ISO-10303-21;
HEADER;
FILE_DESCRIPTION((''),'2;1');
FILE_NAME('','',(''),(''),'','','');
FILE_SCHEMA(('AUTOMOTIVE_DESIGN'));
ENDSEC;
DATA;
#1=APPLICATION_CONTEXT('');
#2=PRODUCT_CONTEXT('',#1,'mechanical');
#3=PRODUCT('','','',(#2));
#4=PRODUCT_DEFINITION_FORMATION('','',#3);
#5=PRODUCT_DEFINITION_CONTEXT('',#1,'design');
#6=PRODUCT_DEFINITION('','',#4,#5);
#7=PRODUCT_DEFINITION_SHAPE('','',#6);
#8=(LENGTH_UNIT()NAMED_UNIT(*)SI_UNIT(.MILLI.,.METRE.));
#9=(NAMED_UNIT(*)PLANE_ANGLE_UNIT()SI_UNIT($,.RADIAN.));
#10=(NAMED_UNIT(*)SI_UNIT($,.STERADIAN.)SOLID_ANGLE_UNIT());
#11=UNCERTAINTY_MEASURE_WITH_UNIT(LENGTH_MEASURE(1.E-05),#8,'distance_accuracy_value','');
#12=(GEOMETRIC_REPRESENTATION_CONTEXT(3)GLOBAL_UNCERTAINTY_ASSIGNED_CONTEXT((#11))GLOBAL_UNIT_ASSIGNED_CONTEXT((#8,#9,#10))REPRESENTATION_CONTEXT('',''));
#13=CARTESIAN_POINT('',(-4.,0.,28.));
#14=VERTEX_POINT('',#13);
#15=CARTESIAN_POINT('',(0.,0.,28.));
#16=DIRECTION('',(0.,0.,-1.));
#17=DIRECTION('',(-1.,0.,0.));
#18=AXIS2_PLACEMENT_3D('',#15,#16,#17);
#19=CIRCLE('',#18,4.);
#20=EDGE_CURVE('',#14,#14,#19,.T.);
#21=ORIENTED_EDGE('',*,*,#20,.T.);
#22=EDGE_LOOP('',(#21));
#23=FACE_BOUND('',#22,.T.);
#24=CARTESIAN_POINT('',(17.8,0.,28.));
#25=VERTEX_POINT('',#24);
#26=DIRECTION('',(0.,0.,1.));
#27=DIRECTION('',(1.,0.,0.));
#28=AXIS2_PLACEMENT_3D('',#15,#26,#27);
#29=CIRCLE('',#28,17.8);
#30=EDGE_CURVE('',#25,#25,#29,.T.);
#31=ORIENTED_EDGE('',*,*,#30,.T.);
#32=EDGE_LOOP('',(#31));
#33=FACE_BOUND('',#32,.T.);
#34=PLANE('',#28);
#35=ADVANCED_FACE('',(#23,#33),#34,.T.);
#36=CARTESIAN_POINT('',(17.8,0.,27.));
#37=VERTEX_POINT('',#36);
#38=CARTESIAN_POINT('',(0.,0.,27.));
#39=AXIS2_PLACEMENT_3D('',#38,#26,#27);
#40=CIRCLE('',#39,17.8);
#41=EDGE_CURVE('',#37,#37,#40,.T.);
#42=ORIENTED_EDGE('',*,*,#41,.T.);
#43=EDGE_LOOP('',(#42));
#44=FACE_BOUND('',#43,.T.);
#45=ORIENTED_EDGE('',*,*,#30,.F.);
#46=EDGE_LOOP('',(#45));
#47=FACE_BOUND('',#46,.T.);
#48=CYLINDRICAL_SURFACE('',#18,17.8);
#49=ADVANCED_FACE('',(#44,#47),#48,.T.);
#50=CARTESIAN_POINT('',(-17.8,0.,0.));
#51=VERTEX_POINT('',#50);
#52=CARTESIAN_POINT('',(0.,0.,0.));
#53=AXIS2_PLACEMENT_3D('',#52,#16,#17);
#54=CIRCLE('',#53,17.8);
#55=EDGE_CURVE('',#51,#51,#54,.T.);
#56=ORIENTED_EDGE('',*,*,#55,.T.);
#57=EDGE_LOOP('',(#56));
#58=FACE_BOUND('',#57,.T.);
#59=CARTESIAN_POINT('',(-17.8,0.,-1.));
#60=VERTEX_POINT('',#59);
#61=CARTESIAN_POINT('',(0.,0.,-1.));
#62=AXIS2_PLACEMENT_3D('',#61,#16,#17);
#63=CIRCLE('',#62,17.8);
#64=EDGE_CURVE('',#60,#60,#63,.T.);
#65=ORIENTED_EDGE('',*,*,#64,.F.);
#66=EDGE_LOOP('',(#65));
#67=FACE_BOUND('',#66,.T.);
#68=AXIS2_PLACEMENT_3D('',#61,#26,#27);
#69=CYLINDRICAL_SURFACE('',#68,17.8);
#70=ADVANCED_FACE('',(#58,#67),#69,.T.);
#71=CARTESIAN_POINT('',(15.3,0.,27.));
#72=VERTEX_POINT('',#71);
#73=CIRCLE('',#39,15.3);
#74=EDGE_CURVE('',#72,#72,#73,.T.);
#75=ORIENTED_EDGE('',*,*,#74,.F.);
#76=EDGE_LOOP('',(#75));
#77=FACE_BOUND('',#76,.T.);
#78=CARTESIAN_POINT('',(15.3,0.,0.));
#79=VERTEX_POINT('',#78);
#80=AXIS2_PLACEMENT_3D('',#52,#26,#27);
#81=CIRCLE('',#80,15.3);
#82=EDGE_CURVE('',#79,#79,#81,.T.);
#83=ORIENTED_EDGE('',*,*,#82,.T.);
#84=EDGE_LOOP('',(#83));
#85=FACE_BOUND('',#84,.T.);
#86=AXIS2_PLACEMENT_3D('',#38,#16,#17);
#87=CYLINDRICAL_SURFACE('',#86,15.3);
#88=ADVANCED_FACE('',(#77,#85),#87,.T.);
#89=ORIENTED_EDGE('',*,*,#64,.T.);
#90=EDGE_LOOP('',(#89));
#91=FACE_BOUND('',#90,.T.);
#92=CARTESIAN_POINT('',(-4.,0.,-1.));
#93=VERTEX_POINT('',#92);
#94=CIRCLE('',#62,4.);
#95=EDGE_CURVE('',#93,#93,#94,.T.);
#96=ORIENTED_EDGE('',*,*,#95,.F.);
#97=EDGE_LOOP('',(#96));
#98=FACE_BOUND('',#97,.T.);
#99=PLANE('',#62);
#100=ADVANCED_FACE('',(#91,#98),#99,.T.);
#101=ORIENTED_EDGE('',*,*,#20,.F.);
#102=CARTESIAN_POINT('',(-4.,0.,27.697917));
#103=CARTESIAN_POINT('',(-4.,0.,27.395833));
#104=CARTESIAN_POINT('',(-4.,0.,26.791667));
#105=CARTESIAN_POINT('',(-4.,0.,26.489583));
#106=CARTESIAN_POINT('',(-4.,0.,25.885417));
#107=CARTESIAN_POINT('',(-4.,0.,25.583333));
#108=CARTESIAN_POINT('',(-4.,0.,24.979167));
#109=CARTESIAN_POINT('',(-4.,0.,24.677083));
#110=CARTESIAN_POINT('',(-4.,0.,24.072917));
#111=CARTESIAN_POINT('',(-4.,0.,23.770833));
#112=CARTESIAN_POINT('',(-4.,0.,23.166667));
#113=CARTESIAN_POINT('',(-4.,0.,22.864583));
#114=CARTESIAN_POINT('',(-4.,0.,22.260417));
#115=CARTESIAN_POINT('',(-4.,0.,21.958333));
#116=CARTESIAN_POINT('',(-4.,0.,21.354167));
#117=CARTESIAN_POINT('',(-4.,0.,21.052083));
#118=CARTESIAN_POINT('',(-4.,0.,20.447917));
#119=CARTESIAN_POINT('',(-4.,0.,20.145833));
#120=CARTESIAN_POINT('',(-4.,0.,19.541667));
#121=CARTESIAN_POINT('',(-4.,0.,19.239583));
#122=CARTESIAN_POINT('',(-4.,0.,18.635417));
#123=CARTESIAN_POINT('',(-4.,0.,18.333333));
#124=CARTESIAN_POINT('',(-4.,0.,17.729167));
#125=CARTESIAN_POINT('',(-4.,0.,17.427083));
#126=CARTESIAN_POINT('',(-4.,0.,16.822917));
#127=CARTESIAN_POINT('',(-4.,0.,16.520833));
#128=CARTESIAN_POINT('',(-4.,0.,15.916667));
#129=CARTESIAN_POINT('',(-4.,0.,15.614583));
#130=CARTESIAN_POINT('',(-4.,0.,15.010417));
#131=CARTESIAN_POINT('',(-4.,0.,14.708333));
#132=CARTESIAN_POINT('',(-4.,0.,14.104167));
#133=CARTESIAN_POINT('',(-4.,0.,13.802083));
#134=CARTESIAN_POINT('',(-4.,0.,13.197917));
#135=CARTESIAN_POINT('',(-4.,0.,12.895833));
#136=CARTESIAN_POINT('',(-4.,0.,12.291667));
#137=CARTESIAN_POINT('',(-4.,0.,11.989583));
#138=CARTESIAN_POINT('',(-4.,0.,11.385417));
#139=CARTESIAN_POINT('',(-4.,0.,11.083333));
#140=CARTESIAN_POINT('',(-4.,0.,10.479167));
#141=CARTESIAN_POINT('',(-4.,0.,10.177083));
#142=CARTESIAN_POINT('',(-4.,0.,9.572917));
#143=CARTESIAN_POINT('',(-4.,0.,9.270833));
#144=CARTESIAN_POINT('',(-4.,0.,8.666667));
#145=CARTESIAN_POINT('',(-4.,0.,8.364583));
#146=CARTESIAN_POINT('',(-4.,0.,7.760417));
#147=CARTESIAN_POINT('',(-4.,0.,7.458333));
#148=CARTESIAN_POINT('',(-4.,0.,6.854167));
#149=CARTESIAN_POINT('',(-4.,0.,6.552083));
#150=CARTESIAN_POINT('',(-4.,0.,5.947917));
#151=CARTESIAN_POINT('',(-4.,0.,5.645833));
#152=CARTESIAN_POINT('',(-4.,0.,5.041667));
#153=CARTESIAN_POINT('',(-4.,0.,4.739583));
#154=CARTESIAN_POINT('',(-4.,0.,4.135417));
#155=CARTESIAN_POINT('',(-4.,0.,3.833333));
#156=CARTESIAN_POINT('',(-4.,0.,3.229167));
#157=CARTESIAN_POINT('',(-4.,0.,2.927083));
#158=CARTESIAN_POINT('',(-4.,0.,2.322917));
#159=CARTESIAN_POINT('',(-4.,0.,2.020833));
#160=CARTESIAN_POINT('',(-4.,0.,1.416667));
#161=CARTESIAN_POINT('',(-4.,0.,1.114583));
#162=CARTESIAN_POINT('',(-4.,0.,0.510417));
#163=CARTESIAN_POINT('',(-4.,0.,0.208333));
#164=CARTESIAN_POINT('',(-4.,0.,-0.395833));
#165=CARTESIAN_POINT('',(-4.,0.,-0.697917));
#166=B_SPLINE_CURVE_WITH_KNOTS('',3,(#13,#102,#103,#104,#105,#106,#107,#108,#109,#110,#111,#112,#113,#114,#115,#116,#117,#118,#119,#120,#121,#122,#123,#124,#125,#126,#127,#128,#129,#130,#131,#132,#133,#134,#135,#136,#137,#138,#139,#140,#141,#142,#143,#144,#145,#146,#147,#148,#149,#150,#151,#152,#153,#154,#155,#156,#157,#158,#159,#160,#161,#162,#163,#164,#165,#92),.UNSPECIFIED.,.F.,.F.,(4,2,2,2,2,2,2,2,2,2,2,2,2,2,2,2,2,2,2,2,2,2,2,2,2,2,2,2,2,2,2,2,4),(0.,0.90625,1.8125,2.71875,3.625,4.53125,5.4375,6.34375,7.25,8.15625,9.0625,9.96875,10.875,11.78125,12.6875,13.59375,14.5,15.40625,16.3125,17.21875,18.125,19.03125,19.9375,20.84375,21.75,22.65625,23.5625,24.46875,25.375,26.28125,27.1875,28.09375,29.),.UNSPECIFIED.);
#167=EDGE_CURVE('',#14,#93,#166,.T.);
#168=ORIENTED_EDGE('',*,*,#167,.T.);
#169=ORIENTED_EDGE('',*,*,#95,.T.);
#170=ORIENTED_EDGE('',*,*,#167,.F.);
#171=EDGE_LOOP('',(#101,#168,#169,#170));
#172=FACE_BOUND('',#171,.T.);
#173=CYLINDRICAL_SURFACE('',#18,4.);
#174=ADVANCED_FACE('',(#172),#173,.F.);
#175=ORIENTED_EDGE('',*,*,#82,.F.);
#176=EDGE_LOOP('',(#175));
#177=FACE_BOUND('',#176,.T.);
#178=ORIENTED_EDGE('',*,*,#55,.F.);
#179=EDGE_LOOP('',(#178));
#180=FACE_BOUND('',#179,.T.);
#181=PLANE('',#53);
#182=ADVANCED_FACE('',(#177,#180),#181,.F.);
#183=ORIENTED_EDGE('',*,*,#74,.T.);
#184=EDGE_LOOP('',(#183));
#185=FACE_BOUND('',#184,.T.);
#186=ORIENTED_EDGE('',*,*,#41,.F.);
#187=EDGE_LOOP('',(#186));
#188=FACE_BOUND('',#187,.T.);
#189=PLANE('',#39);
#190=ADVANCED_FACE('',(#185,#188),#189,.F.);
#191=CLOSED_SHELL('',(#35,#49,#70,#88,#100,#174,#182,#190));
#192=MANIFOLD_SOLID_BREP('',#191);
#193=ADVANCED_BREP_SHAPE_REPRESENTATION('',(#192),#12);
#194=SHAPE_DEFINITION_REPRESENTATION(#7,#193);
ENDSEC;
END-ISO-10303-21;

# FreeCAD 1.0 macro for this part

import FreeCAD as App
import Part
import Sketcher

V = App.Vector

doc = App.newDocument("Part")
body = doc.addObject("PartDesign::Body", "Body")

sketch1 = body.newObject("Sketcher::SketchObject", "Sketch")
sketch1.AttachmentSupport = (doc.getObject("XY_Plane"), [""])
sketch1.MapMode = "FlatFace"
sketch1.addGeometry(Part.Circle(V(0, 0, 0), V(0, 0, 1), 15.3), False)
sketch1.addConstraint([
    Sketcher.Constraint("Coincident", 0, 3, -1, 1),
    Sketcher.Constraint("Diameter", 0, 30.6),
])
pad1 = body.newObject("PartDesign::Pad", "Pad")
pad1.Profile = sketch1
pad1.Length = 27

sketch2 = body.newObject("Sketcher::SketchObject", "Sketch001")
sketch2.AttachmentSupport = (doc.getObject("XY_Plane"), [""])
sketch2.MapMode = "FlatFace"
sketch2.AttachmentOffset = App.Placement(V(0, 0, 27), App.Rotation())
sketch2.addGeometry(Part.Circle(V(0, 0, 0), V(0, 0, 1), 17.8), False)
sketch2.addConstraint([
    Sketcher.Constraint("Coincident", 0, 3, -1, 1),
    Sketcher.Constraint("Diameter", 0, 35.6),
])
pad2 = body.newObject("PartDesign::Pad", "Pad001")
pad2.Profile = sketch2
pad2.Length = 1

sketch3 = body.newObject("Sketcher::SketchObject", "Sketch002")
sketch3.AttachmentSupport = (doc.getObject("XY_Plane"), [""])
sketch3.MapMode = "FlatFace"
sketch3.AttachmentOffset = App.Placement(V(0, 0, -1), App.Rotation())
sketch3.addGeometry(Part.Circle(V(0, 0, 0), V(0, 0, 1), 17.8), False)
sketch3.addConstraint([
    Sketcher.Constraint("Coincident", 0, 3, -1, 1),
    Sketcher.Constraint("Diameter", 0, 35.6),
])
pad3 = body.newObject("PartDesign::Pad", "Pad002")
pad3.Profile = sketch3
pad3.Length = 1

sketch4 = body.newObject("Sketcher::SketchObject", "Sketch003")
sketch4.AttachmentSupport = (doc.getObject("XY_Plane"), [""])
sketch4.MapMode = "FlatFace"
sketch4.AttachmentOffset = App.Placement(V(0, 0, -1), App.Rotation())
sketch4.addGeometry(Part.Circle(V(0, 0, 0), V(0, 0, 1), 4), False)
sketch4.addConstraint([
    Sketcher.Constraint("Coincident", 0, 3, -1, 1),
    Sketcher.Constraint("Diameter", 0, 8.0),
])
pocket1 = body.newObject("PartDesign::Pocket", "Pocket")
pocket1.Profile = sketch4
pocket1.Type = "ThroughAll"
pocket1.Reversed = True

doc.recompute()
